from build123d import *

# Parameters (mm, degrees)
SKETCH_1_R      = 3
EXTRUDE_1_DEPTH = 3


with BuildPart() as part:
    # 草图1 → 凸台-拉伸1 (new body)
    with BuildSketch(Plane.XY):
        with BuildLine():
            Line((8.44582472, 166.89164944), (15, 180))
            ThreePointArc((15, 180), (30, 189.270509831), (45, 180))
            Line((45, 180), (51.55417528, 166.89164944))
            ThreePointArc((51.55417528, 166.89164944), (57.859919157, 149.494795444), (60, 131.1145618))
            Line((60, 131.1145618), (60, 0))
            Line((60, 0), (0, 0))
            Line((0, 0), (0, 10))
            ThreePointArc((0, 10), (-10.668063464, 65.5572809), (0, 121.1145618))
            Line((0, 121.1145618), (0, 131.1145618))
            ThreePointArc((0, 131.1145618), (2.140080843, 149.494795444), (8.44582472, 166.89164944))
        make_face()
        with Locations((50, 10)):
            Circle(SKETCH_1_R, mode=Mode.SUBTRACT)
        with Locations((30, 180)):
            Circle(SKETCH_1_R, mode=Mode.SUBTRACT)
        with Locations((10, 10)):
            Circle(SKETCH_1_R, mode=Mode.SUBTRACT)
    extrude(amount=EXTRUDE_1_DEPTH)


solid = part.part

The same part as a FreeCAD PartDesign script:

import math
import FreeCAD as App
import Part
import Sketcher

V = App.Vector
Q = App.Units.Quantity

doc = App.newDocument("Part")
params = doc.addObject("Spreadsheet::Sheet", "Params")
for row, (alias, value) in enumerate([
    ("sketch1_diameter", "6 mm"),
    ("sketch1_radius", "80 mm"),
    ("sketch1_radius2", "150 mm"),
    ("sketch1_width", "60 mm"),
    ("sketch1_height", "10 mm"),
    ("pad1_length", "3 mm"),
], start=1):
    params.set(f"A{row}", alias)
    params.set(f"B{row}", "=" + value)
    params.setAlias(f"B{row}", alias)

body = doc.addObject("PartDesign::Body", "Body")

# Sketch on XY plane
sketch1 = doc.addObject("Sketcher::SketchObject", "Sketch")
body.addObject(sketch1)
sketch1.AttachmentSupport = (doc.XY_Plane, [""])
sketch1.MapMode = "FlatFace"
sketch1.addGeometry([
    Part.LineSegment(V(15, 180, 0), V(8.4, 166.9, 0)),  # 0
    Part.ArcOfCircle(Part.Circle(V(80, 131.1, 0), V(0, 0, 1), 80), math.radians(153), math.radians(180)),  # 1
    Part.LineSegment(V(0, 131.1, 0), V(0, 121.1, 0)),  # 2
    Part.ArcOfCircle(Part.Circle(V(139.3, 65.6, 0), V(0, 0, 1), 150), math.radians(158), math.radians(202)),  # 3
    Part.LineSegment(V(0, 10, 0), V(0, 0, 0)),  # 4
    Part.LineSegment(V(0, 0, 0), V(60, 0, 0)),  # 5
    Part.LineSegment(V(60, 0, 0), V(60, 131.1, 0)),  # 6
    Part.ArcOfCircle(Part.Circle(V(-20, 131.1, 0), V(0, 0, 1), 80), math.radians(0), math.radians(27)),  # 7
    Part.LineSegment(V(51.6, 166.9, 0), V(45, 180, 0)),  # 8
    Part.ArcOfCircle(Part.Circle(V(30, 172.5, 0), V(0, 0, 1), 16.8), math.radians(27), math.radians(153)),  # 9
    Part.Circle(V(50, 10, 0), V(0, 0, 1), 3),  # 10
    Part.Circle(V(10, 10, 0), V(0, 0, 1), 3),  # 11
    Part.Circle(V(30, 180, 0), V(0, 0, 1), 3),  # 12
], False)
sketch1.addConstraint([
    Sketcher.Constraint("Tangent", 0, 2, 1, 1),
    Sketcher.Constraint("Tangent", 1, 2, 2, 1),
    Sketcher.Constraint("Coincident", 2, 2, 3, 1),
    Sketcher.Constraint("Coincident", 3, 2, 4, 1),
    Sketcher.Constraint("Coincident", 4, 2, 5, 1),
    Sketcher.Constraint("Coincident", 5, 2, 6, 1),
    Sketcher.Constraint("Tangent", 6, 2, 7, 1),
    Sketcher.Constraint("Tangent", 7, 2, 8, 1),
    Sketcher.Constraint("Tangent", 8, 2, 9, 1),
    Sketcher.Constraint("Tangent", 9, 2, 0, 1),
    Sketcher.Constraint("Vertical", 2),
    Sketcher.Constraint("Vertical", 4),
    Sketcher.Constraint("Horizontal", 5),
    Sketcher.Constraint("Vertical", 6),
    Sketcher.Constraint("Coincident", 4, 2, -1, 1),
    Sketcher.Constraint("Equal", 1, 7),
    Sketcher.Constraint("Equal", 10, 11),
    Sketcher.Constraint("Equal", 11, 12),
    Sketcher.Constraint("PointOnObject", 1, 2, -2),
    Sketcher.Constraint("Horizontal", 1, 3, 7, 3),
    Sketcher.Constraint("Horizontal", 10, 3, 11, 3),
    Sketcher.Constraint("Horizontal", 11, 3, 3, 2),
    Sketcher.Constraint("Horizontal", 0, 2, 7, 2),
    Sketcher.Constraint("Horizontal", 12, 3, 8, 2),
    Sketcher.Constraint("Vertical", 9, 3, 12, 3),
    Sketcher.Constraint("Equal", 2, 4),
    Sketcher.Constraint("Diameter", 10, Q("6 mm")),
    Sketcher.Constraint("Radius", 1, Q("80 mm")),
    Sketcher.Constraint("Radius", 3, Q("150 mm")),
    Sketcher.Constraint("DistanceX", 5, 1, 5, 2, Q("60 mm")),
    Sketcher.Constraint("DistanceY", 2, 2, 2, 1, Q("10 mm")),
    Sketcher.Constraint("DistanceX", -1, 1, 10, 3, Q("50 mm")),
    Sketcher.Constraint("DistanceX", -1, 1, 11, 3, Q("10 mm")),
    Sketcher.Constraint("DistanceY", -1, 1, 12, 3, Q("180 mm")),
    Sketcher.Constraint("DistanceX", -1, 1, 8, 2, Q("45 mm")),
    Sketcher.Constraint("DistanceY", -1, 1, 9, 3, Q("172.5 mm")),
])
sketch1.setExpression("Constraints[26]", "Params.sketch1_diameter")
sketch1.setExpression("Constraints[27]", "Params.sketch1_radius")
sketch1.setExpression("Constraints[28]", "Params.sketch1_radius2")
sketch1.setExpression("Constraints[29]", "Params.sketch1_width")
sketch1.setExpression("Constraints[30]", "Params.sketch1_height")
pad1 = doc.addObject("PartDesign::Pad", "Pad")
body.addObject(pad1)
pad1.Profile = sketch1
pad1.setExpression("Length", "Params.pad1_length")

doc.recompute()
